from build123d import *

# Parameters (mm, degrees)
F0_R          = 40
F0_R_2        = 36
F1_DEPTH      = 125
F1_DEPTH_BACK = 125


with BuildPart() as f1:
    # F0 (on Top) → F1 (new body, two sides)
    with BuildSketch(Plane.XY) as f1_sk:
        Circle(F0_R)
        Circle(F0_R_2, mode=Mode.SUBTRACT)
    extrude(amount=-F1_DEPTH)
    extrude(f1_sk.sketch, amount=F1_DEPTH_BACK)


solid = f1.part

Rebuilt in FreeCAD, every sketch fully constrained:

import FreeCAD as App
import Part
import Sketcher
Q = App.Units.Quantity

doc = App.newDocument("Part")
body = doc.addObject("PartDesign::Body", "Body")

sketch1 = body.newObject("Sketcher::SketchObject", "Sketch")
sketch1.AttachmentSupport = (doc.getObject("XY_Plane"), [""])
sketch1.MapMode = "FlatFace"
sketch1.addGeometry(Part.Circle(App.Vector(0, 0, 0), App.Vector(0, 0, 1), 40), False)
sketch1.addGeometry(Part.Circle(App.Vector(0, 0, 0), App.Vector(0, 0, 1), 36), False)
sketch1.addConstraint(Sketcher.Constraint("Coincident", 0, 3, -1, 1))
sketch1.addConstraint(Sketcher.Constraint("Coincident", 1, 3, -1, 1))
sketch1.addConstraint(Sketcher.Constraint("Diameter", 0, Q("80 mm")))
sketch1.addConstraint(Sketcher.Constraint("Diameter", 1, Q("72 mm")))
pad1 = body.newObject("PartDesign::Pad", "Pad")
pad1.Profile = sketch1
pad1.Type = "TwoLengths"
pad1.Length = 125
pad1.Length2 = 125
pad1.Reversed = True

doc.recompute()
